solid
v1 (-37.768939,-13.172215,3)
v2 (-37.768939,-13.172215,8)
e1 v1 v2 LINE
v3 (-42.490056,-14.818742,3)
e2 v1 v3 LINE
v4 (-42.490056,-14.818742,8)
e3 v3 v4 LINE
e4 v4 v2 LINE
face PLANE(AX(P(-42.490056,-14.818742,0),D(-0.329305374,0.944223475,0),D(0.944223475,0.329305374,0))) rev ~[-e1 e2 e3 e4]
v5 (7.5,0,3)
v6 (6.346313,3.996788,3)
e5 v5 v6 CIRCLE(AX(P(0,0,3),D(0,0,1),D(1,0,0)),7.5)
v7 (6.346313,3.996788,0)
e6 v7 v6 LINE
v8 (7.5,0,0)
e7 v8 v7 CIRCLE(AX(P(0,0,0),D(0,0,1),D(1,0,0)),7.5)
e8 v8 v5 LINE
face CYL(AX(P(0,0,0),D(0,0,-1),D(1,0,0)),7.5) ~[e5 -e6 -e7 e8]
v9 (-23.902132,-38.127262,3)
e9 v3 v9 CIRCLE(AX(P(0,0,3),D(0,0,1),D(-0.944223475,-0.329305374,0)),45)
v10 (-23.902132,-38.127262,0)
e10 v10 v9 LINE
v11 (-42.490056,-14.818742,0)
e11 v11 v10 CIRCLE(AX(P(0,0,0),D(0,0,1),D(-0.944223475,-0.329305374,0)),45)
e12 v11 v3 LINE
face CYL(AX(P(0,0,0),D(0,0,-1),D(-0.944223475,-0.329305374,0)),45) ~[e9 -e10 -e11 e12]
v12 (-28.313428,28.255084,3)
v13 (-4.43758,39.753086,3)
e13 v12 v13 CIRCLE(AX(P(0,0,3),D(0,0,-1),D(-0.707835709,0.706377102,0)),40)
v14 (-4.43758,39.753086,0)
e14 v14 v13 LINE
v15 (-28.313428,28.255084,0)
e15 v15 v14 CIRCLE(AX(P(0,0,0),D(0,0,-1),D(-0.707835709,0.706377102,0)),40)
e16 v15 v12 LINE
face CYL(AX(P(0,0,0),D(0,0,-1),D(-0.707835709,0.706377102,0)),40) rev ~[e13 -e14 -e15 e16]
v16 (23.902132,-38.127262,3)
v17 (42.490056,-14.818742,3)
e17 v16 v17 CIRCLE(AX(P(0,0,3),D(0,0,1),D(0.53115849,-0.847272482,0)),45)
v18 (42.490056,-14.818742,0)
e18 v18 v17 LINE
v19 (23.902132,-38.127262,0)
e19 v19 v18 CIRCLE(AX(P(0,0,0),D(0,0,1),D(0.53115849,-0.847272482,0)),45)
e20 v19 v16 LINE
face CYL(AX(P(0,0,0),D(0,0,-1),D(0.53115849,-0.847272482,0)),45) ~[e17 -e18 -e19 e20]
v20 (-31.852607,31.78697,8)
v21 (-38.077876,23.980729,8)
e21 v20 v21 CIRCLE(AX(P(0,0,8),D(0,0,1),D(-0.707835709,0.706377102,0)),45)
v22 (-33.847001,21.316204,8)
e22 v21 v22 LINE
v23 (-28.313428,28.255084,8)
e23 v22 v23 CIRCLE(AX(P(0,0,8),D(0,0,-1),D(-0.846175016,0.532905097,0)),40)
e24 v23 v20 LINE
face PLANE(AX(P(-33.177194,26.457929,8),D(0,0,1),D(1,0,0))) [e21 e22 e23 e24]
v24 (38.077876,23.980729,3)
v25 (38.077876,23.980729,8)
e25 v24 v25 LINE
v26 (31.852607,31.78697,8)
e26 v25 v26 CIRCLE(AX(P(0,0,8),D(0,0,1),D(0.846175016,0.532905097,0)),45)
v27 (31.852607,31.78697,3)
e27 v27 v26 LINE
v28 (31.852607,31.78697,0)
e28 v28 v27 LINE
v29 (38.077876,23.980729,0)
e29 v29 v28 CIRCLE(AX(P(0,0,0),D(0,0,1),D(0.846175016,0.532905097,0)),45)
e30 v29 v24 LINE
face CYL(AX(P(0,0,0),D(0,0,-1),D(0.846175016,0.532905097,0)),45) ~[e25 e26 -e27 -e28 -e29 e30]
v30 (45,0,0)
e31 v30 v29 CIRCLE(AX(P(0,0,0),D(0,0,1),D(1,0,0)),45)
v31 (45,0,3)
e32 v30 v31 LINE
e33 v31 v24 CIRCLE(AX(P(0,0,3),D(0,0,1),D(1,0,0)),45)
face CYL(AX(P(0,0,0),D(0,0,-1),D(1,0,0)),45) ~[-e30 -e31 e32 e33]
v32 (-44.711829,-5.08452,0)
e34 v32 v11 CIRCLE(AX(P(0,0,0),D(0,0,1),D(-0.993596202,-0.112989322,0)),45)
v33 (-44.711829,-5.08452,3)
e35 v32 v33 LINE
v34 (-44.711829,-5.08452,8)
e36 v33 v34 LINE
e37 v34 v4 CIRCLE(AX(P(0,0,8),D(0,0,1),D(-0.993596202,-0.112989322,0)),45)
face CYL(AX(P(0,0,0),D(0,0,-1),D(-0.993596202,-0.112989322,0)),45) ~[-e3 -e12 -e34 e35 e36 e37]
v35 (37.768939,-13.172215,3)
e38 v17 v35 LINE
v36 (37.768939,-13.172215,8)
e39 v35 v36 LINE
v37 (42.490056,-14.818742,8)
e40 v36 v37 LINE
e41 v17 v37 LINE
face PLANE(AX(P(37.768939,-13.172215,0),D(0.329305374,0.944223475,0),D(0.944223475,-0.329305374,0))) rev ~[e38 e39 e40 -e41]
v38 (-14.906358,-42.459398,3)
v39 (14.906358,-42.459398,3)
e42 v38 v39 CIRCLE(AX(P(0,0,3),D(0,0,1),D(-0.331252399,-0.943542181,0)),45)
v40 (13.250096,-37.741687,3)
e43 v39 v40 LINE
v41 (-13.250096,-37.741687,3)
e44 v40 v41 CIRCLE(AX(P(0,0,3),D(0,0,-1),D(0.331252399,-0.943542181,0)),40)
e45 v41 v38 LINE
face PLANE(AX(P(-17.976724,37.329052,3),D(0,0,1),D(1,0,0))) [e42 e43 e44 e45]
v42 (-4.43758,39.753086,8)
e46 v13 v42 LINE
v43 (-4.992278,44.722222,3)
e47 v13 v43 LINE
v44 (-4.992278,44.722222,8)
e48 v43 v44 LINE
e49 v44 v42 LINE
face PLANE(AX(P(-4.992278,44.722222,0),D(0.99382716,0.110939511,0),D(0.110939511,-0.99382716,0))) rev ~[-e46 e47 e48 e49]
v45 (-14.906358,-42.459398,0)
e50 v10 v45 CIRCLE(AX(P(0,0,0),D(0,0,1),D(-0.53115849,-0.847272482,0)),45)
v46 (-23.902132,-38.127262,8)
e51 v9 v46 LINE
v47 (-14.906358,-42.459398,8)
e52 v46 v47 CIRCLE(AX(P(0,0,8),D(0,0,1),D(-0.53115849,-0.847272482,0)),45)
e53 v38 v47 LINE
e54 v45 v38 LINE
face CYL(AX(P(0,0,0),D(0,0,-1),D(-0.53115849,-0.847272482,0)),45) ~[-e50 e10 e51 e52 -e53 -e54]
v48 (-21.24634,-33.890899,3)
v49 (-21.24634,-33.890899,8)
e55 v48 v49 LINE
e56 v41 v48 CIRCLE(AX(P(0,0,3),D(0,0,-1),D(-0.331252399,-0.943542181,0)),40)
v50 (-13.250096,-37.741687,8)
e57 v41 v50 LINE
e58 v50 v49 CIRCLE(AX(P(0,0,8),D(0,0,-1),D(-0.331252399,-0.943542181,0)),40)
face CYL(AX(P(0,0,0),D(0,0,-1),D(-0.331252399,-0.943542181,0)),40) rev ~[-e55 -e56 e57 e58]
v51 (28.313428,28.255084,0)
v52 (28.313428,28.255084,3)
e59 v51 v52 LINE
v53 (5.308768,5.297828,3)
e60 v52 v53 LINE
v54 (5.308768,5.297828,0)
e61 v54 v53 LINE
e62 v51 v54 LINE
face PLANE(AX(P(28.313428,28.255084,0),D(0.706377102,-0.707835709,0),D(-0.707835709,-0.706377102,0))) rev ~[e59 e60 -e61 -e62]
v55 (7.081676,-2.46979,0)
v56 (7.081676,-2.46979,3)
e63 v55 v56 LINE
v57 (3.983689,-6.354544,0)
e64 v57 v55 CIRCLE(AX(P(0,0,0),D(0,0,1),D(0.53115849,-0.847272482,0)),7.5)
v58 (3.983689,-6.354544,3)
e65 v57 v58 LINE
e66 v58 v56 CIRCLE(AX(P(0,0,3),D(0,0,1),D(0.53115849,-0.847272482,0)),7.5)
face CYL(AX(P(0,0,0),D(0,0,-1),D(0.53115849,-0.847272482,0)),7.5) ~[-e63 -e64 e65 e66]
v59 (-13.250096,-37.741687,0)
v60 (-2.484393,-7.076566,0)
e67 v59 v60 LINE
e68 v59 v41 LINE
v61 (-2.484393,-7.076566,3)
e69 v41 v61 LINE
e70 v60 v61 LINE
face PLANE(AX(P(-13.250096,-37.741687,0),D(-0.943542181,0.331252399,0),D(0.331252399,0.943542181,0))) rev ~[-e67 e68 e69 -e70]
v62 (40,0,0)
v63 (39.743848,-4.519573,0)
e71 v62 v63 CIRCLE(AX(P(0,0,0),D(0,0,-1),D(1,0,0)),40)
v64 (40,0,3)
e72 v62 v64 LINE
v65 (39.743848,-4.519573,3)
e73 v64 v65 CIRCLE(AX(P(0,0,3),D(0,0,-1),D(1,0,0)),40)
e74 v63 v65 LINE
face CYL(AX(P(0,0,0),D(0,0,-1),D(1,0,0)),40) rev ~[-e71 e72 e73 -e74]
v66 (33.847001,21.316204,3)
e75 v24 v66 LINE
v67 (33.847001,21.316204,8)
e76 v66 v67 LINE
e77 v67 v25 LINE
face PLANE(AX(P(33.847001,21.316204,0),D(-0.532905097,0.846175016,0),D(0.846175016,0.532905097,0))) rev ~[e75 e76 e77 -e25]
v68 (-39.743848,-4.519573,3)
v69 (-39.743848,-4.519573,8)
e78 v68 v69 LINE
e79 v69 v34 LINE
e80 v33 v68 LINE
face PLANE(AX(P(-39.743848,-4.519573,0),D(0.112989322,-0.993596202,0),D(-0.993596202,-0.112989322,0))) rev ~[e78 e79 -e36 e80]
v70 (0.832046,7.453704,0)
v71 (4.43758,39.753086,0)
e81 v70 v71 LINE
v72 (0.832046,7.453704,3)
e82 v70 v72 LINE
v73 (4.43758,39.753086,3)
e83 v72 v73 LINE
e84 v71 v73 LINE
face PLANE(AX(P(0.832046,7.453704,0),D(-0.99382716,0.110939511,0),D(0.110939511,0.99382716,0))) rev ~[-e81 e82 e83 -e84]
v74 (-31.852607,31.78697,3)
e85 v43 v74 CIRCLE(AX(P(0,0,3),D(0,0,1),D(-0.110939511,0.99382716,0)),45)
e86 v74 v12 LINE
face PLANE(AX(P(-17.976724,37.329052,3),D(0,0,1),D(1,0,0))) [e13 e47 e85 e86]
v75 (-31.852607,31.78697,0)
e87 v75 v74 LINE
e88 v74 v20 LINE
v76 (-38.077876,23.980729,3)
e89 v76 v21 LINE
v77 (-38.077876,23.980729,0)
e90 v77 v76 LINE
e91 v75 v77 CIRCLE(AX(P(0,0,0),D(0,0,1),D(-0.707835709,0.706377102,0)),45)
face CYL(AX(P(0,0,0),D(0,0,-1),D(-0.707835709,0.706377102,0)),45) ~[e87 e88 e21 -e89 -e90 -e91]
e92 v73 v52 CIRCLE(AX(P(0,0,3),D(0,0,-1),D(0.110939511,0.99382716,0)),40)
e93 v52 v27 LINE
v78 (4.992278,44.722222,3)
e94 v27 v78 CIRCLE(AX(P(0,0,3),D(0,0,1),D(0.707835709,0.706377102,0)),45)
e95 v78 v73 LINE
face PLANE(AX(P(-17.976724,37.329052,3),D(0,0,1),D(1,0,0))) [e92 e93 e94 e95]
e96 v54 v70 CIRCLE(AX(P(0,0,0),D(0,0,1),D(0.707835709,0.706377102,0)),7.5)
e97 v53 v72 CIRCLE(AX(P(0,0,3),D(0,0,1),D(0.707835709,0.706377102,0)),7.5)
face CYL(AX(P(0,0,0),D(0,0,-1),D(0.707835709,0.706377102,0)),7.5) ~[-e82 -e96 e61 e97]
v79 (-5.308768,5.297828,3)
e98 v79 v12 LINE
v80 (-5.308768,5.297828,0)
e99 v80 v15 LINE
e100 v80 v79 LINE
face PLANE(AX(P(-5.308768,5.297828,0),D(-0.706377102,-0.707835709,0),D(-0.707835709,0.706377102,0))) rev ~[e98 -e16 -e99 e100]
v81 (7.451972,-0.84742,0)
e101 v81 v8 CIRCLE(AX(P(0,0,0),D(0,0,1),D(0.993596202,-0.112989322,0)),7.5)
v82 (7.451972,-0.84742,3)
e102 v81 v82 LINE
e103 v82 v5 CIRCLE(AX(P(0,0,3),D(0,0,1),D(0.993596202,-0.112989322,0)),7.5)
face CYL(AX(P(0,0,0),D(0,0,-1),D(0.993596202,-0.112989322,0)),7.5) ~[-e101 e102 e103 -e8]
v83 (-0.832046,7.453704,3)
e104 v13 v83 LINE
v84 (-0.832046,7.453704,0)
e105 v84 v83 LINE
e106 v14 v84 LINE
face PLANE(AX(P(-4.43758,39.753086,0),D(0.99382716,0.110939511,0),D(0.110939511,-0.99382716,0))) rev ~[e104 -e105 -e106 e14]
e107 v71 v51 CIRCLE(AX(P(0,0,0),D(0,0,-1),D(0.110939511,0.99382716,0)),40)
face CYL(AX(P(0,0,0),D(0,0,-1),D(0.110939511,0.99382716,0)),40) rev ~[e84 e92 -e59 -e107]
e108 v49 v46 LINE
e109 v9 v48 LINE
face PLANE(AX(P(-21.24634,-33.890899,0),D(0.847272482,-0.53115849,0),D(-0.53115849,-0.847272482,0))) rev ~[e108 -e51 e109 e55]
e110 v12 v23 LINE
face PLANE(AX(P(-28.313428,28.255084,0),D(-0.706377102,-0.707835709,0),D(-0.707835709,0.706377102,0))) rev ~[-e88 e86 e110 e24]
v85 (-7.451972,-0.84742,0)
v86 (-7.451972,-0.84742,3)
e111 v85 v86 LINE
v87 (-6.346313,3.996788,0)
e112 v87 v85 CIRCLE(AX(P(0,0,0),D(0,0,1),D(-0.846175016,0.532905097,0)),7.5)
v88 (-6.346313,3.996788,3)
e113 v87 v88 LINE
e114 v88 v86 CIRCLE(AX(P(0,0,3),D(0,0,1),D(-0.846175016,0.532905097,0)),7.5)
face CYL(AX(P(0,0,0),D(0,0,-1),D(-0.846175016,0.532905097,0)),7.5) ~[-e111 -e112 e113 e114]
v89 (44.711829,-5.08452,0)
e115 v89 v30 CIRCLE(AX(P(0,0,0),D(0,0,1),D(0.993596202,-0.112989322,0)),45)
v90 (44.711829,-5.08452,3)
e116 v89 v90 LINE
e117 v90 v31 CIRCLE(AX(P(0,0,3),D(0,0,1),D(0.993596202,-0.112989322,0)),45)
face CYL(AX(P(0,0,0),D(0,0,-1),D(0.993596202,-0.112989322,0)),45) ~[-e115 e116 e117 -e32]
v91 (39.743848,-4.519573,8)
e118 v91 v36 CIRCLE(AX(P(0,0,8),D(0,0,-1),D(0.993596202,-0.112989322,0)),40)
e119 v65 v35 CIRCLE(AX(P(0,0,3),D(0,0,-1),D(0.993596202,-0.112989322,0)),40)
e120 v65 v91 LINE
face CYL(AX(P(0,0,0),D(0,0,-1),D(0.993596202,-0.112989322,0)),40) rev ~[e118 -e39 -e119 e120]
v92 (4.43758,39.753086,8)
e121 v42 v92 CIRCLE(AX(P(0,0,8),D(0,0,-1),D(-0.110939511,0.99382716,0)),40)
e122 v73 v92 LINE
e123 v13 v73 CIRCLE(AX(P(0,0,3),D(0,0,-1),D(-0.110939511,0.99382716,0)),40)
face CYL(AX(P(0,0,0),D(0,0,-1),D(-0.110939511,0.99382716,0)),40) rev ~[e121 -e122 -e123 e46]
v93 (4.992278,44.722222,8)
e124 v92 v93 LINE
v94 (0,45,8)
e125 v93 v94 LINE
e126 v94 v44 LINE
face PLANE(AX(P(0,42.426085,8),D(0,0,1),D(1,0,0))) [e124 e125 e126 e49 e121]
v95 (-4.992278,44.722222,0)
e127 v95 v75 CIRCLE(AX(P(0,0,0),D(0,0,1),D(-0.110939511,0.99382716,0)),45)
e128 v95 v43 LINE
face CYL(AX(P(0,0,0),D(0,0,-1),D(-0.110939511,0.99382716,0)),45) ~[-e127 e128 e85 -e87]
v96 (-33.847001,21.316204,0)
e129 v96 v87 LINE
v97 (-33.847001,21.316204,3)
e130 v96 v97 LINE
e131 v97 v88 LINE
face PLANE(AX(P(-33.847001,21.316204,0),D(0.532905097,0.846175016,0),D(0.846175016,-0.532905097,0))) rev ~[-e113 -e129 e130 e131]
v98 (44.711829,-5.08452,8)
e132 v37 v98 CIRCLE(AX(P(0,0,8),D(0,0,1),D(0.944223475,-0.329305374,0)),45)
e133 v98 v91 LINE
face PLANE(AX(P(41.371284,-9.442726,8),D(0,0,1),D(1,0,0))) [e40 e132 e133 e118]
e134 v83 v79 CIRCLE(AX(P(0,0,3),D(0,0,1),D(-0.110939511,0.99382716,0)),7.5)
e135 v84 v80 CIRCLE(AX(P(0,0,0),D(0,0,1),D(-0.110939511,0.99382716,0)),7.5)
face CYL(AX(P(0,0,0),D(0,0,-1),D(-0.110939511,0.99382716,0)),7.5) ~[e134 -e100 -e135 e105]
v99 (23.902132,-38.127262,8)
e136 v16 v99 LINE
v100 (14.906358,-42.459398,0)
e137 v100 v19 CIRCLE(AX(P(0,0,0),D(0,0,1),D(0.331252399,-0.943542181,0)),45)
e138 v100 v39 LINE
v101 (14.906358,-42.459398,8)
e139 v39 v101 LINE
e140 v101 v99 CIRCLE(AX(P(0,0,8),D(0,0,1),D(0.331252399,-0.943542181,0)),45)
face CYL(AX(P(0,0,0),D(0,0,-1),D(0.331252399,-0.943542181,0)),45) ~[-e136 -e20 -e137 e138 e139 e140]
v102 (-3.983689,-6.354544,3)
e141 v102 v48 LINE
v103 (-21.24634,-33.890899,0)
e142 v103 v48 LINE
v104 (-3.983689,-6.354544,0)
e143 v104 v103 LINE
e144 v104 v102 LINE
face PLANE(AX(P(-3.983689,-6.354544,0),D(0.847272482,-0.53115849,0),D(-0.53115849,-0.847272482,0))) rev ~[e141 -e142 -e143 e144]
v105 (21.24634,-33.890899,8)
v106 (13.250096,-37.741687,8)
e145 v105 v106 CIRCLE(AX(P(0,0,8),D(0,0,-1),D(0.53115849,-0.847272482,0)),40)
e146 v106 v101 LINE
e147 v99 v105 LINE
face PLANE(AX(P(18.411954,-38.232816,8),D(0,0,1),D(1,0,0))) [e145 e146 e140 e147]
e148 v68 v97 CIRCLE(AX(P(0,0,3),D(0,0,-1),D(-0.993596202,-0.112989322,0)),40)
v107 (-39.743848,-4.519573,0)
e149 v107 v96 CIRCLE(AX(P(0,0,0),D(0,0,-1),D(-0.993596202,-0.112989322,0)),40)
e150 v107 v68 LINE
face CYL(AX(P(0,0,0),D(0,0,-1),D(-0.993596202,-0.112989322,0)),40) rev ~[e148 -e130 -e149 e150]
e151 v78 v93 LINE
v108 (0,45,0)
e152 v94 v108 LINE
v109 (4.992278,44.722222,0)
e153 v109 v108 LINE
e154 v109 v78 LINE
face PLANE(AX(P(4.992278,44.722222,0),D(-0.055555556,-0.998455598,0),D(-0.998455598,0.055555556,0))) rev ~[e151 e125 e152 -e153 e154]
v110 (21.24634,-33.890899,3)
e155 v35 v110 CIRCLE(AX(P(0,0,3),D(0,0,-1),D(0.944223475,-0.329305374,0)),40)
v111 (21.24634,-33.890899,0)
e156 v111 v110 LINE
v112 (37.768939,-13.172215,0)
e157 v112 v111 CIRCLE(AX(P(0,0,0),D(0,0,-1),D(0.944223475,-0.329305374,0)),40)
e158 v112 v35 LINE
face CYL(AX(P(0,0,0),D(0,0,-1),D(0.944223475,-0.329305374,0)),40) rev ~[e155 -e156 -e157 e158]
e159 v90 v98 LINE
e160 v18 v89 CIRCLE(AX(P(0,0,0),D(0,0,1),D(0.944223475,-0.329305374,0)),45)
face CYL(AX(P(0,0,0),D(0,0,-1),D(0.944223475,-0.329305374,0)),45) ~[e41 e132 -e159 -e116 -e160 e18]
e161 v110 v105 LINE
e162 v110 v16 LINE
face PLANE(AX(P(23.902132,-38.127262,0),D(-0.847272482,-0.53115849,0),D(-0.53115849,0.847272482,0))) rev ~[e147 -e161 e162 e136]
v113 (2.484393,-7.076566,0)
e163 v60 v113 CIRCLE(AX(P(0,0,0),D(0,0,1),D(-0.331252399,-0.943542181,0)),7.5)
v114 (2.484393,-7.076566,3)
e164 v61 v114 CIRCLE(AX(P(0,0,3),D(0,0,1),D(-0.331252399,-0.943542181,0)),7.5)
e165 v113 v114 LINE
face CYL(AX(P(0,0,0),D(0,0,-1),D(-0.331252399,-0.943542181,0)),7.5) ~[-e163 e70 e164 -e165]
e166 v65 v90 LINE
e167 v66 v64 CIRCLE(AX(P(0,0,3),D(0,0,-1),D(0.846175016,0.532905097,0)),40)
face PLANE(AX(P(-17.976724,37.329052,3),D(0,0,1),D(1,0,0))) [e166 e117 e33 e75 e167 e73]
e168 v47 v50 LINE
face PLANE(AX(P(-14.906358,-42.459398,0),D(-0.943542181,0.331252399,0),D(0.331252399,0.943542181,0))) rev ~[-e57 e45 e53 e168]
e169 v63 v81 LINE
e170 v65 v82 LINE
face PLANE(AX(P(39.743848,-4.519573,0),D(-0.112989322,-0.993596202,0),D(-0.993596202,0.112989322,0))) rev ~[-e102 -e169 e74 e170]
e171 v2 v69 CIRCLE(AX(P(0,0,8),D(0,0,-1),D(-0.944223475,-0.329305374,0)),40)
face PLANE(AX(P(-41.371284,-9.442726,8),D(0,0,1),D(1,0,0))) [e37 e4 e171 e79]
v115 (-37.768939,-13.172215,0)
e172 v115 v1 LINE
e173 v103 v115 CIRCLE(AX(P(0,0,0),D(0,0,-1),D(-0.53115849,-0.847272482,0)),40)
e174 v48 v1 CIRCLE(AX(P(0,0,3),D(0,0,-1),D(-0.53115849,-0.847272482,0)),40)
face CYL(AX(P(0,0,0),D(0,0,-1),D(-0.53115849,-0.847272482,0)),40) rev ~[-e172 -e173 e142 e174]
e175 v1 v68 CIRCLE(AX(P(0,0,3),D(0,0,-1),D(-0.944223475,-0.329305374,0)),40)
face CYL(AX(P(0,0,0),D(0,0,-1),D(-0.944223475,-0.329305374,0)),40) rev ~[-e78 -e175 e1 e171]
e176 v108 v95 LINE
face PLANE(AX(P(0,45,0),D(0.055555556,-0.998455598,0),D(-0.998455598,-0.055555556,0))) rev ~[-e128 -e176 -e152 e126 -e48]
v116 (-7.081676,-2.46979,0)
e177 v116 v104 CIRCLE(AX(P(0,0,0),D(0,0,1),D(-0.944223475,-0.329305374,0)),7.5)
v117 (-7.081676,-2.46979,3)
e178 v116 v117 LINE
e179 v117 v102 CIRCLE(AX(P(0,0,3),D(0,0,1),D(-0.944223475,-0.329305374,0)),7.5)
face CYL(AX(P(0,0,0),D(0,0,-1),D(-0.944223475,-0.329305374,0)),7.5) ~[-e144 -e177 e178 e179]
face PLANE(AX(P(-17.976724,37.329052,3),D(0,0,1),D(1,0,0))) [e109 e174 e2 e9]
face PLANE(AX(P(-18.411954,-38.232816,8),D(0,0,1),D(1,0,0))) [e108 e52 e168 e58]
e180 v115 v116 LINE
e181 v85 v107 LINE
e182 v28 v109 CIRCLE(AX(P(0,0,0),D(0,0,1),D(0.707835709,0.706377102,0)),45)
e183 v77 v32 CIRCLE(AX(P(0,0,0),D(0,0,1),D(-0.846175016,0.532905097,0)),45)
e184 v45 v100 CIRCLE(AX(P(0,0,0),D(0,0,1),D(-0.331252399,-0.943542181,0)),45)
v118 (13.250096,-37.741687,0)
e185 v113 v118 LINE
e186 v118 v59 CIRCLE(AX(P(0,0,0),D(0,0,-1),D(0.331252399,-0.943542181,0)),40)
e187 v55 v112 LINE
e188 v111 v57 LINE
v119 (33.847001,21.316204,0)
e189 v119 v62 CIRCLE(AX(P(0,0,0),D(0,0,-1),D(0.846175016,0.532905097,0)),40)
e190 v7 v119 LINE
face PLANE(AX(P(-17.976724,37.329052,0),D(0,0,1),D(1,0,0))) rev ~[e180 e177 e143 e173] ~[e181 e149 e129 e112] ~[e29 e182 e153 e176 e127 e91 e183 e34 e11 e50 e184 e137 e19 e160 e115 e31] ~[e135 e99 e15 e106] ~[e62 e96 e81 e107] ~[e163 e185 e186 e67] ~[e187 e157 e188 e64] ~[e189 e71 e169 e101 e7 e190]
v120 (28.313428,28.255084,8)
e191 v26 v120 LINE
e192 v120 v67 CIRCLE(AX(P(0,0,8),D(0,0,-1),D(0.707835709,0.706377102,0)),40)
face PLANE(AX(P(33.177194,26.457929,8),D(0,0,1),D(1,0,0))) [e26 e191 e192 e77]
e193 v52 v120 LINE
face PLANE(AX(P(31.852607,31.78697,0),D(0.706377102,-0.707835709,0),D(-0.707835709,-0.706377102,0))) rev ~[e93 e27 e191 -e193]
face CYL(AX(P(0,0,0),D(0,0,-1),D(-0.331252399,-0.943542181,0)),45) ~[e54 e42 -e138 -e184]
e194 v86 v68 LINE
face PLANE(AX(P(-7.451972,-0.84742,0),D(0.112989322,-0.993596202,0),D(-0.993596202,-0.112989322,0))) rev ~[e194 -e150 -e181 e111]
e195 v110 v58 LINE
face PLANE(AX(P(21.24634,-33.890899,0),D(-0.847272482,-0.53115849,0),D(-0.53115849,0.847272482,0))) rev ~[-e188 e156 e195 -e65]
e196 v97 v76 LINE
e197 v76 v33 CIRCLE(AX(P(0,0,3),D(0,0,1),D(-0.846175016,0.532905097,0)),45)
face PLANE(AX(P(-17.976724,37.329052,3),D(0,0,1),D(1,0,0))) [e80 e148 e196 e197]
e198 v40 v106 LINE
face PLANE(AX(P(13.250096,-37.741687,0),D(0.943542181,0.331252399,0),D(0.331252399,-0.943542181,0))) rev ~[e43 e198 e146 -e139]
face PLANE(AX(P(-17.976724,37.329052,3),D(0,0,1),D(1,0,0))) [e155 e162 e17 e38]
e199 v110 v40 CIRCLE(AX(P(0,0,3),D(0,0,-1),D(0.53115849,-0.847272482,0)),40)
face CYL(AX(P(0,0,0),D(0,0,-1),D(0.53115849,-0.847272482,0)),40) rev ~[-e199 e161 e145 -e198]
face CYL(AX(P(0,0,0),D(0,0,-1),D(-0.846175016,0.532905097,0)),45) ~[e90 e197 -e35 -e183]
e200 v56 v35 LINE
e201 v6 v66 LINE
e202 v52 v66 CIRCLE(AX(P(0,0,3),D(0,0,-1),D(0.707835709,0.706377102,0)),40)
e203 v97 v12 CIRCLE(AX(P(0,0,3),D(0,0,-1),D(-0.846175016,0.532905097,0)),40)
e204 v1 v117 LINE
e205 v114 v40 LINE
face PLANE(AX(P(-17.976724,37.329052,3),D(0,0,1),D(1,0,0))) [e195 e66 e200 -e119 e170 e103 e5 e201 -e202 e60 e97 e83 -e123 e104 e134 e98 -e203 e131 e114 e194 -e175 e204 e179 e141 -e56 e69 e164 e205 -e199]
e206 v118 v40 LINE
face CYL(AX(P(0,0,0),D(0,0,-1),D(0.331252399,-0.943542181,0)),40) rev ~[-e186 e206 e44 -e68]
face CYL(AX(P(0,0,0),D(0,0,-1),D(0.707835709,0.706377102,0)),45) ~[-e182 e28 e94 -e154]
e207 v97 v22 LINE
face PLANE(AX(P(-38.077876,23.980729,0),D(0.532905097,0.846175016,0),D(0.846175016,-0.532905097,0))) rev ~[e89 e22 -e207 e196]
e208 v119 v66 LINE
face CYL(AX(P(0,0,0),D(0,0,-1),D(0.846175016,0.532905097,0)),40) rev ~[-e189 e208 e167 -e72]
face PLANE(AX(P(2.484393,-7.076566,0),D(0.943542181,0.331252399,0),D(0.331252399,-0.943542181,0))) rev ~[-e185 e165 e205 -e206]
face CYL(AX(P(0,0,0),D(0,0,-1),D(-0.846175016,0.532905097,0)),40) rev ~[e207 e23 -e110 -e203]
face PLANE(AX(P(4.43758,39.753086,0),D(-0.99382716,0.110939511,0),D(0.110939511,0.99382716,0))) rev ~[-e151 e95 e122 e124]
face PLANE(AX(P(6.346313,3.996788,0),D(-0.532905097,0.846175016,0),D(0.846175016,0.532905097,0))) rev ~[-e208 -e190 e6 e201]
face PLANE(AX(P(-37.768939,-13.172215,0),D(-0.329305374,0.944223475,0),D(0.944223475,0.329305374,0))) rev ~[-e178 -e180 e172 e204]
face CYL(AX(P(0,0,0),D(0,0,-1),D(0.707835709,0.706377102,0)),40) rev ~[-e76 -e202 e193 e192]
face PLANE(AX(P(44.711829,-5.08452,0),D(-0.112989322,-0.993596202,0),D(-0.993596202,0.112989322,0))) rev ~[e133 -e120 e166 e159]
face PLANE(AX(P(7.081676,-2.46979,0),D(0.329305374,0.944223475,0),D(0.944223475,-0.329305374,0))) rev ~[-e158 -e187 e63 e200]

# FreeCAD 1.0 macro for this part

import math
import FreeCAD as App
import Part
import Sketcher

V = App.Vector

doc = App.newDocument("Part")
body = doc.addObject("PartDesign::Body", "Body")

# Sketch on XY plane
sketch1 = body.newObject("Sketcher::SketchObject", "Sketch")
sketch1.AttachmentSupport = (doc.getObject("XY_Plane"), [""])
sketch1.MapMode = "FlatFace"
sketch1.addGeometry(Part.ArcOfCircle(Part.Circle(V(0, 0, 0), V(0, 0, 1), 45), math.radians(32.2), math.radians(44.94)), False)
sketch1.addGeometry(Part.ArcOfCircle(Part.Circle(V(0, 0, 0), V(0, 0, 1), 45), math.radians(45), math.radians(84)), False)
sketch1.addGeometry(Part.LineSegment(V(5, 44.7, 0), V(0, 45, 0)), False)
sketch1.addGeometry(Part.LineSegment(V(0, 45, 0), V(-5, 44.7, 0)), False)
sketch1.addGeometry(Part.ArcOfCircle(Part.Circle(V(0, 0, 0), V(0, 0, 1), 45), math.radians(96), math.radians(135)), False)
sketch1.addGeometry(Part.ArcOfCircle(Part.Circle(V(0, 0, 0), V(0, 0, 1), 45), math.radians(135.06), math.radians(147.8)), False)
sketch1.addGeometry(Part.ArcOfCircle(Part.Circle(V(0, 0, 0), V(0, 0, 1), 45), math.radians(148), math.radians(186)), False)
sketch1.addGeometry(Part.ArcOfCircle(Part.Circle(V(0, 0, 0), V(0, 0, 1), 45), math.radians(-173.51), math.radians(-160.77)), False)
sketch1.addGeometry(Part.ArcOfCircle(Part.Circle(V(0, 0, 0), V(0, 0, 1), 45), math.radians(-161), math.radians(-122)), False)
sketch1.addGeometry(Part.ArcOfCircle(Part.Circle(V(0, 0, 0), V(0, 0, 1), 45), math.radians(-122.08), math.radians(-109.34)), False)
sketch1.addGeometry(Part.ArcOfCircle(Part.Circle(V(0, 0, 0), V(0, 0, 1), 45), math.radians(-109), math.radians(-71)), False)
sketch1.addGeometry(Part.ArcOfCircle(Part.Circle(V(0, 0, 0), V(0, 0, 1), 45), math.radians(-70.66), math.radians(-57.92)), False)
sketch1.addGeometry(Part.ArcOfCircle(Part.Circle(V(0, 0, 0), V(0, 0, 1), 45), math.radians(-58), math.radians(-19)), False)
sketch1.addGeometry(Part.ArcOfCircle(Part.Circle(V(0, 0, 0), V(0, 0, 1), 45), math.radians(-19.23), math.radians(-6.49)), False)
sketch1.addGeometry(Part.ArcOfCircle(Part.Circle(V(0, 0, 0), V(0, 0, 1), 45), math.radians(-6.49), math.radians(0)), False)
sketch1.addGeometry(Part.ArcOfCircle(Part.Circle(V(0, 0, 0), V(0, 0, 1), 45), math.radians(0), math.radians(32)), False)
sketch1.addGeometry(Part.LineSegment(V(6.3, 4, 0), V(33.8, 21.3, 0)), False)
sketch1.addGeometry(Part.ArcOfCircle(Part.Circle(V(0, 0, 0), V(0, 0, 1), 40), math.radians(0), math.radians(32)), False)
sketch1.addGeometry(Part.ArcOfCircle(Part.Circle(V(0, 0, 0), V(0, 0, 1), 40), math.radians(-6.49), math.radians(0)), False)
sketch1.addGeometry(Part.LineSegment(V(39.7, -4.5, 0), V(7.5, -0.8, 0)), False)
sketch1.addGeometry(Part.ArcOfCircle(Part.Circle(V(0, 0, 0), V(0, 0, 1), 7.5), math.radians(-6.49), math.radians(0)), False)
sketch1.addGeometry(Part.ArcOfCircle(Part.Circle(V(0, 0, 0), V(0, 0, 1), 7.5), math.radians(0), math.radians(32)), False)
sketch1.addGeometry(Part.ArcOfCircle(Part.Circle(V(0, 0, 0), V(0, 0, 1), 7.5), math.radians(-161), math.radians(-122)), False)
sketch1.addGeometry(Part.LineSegment(V(-4, -6.4, 0), V(-21.2, -33.9, 0)), False)
sketch1.addGeometry(Part.ArcOfCircle(Part.Circle(V(0, 0, 0), V(0, 0, 1), 40), math.radians(-161), math.radians(-122)), False)
sketch1.addGeometry(Part.LineSegment(V(-37.8, -13.2, 0), V(-7.1, -2.5, 0)), False)
sketch1.addGeometry(Part.ArcOfCircle(Part.Circle(V(0, 0, 0), V(0, 0, 1), 7.5), math.radians(-109), math.radians(-71)), False)
sketch1.addGeometry(Part.LineSegment(V(2.5, -7.1, 0), V(13.3, -37.7, 0)), False)
sketch1.addGeometry(Part.ArcOfCircle(Part.Circle(V(0, 0, 0), V(0, 0, 1), 40), math.radians(-109), math.radians(-71)), False)
sketch1.addGeometry(Part.LineSegment(V(-13.3, -37.7, 0), V(-2.5, -7.1, 0)), False)
sketch1.addGeometry(Part.ArcOfCircle(Part.Circle(V(0, 0, 0), V(0, 0, 1), 7.5), math.radians(-58), math.radians(-19)), False)
sketch1.addGeometry(Part.LineSegment(V(7.1, -2.5, 0), V(37.8, -13.2, 0)), False)
sketch1.addGeometry(Part.ArcOfCircle(Part.Circle(V(0, 0, 0), V(0, 0, 1), 40), math.radians(-58), math.radians(-19)), False)
sketch1.addGeometry(Part.LineSegment(V(21.2, -33.9, 0), V(4, -6.4, 0)), False)
sketch1.addGeometry(Part.ArcOfCircle(Part.Circle(V(0, 0, 0), V(0, 0, 1), 7.5), math.radians(148), math.radians(186)), False)
sketch1.addGeometry(Part.LineSegment(V(-7.5, -0.8, 0), V(-39.7, -4.5, 0)), False)
sketch1.addGeometry(Part.ArcOfCircle(Part.Circle(V(0, 0, 0), V(0, 0, 1), 40), math.radians(148), math.radians(186)), False)
sketch1.addGeometry(Part.LineSegment(V(-33.8, 21.3, 0), V(-6.3, 4, 0)), False)
sketch1.addGeometry(Part.ArcOfCircle(Part.Circle(V(0, 0, 0), V(0, 0, 1), 40), math.radians(96), math.radians(135)), False)
sketch1.addGeometry(Part.LineSegment(V(-4.4, 39.8, 0), V(-0.8, 7.5, 0)), False)
sketch1.addGeometry(Part.ArcOfCircle(Part.Circle(V(0, 0, 0), V(0, 0, 1), 7.5), math.radians(96), math.radians(135)), False)
sketch1.addGeometry(Part.LineSegment(V(-5.3, 5.3, 0), V(-28.3, 28.3, 0)), False)
sketch1.addGeometry(Part.ArcOfCircle(Part.Circle(V(0, 0, 0), V(0, 0, 1), 40), math.radians(45), math.radians(84)), False)
sketch1.addGeometry(Part.LineSegment(V(28.3, 28.3, 0), V(5.3, 5.3, 0)), False)
sketch1.addGeometry(Part.ArcOfCircle(Part.Circle(V(0, 0, 0), V(0, 0, 1), 7.5), math.radians(45), math.radians(84)), False)
sketch1.addGeometry(Part.LineSegment(V(0.8, 7.5, 0), V(4.4, 39.8, 0)), False)
sketch1.addConstraint(Sketcher.Constraint("Tangent", 0, 2, 1, 1))
sketch1.addConstraint(Sketcher.Constraint("Coincident", 1, 2, 2, 1))
sketch1.addConstraint(Sketcher.Constraint("Coincident", 2, 2, 3, 1))
sketch1.addConstraint(Sketcher.Constraint("Coincident", 3, 2, 4, 1))
sketch1.addConstraint(Sketcher.Constraint("Tangent", 4, 2, 5, 1))
sketch1.addConstraint(Sketcher.Constraint("Tangent", 5, 2, 6, 1))
sketch1.addConstraint(Sketcher.Constraint("Tangent", 6, 2, 7, 1))
sketch1.addConstraint(Sketcher.Constraint("Tangent", 7, 2, 8, 1))
sketch1.addConstraint(Sketcher.Constraint("Tangent", 8, 2, 9, 1))
sketch1.addConstraint(Sketcher.Constraint("Tangent", 9, 2, 10, 1))
sketch1.addConstraint(Sketcher.Constraint("Tangent", 10, 2, 11, 1))
sketch1.addConstraint(Sketcher.Constraint("Tangent", 11, 2, 12, 1))
sketch1.addConstraint(Sketcher.Constraint("Tangent", 12, 2, 13, 1))
sketch1.addConstraint(Sketcher.Constraint("Tangent", 13, 2, 14, 1))
sketch1.addConstraint(Sketcher.Constraint("Tangent", 14, 2, 15, 1))
sketch1.addConstraint(Sketcher.Constraint("Tangent", 15, 2, 0, 1))
sketch1.addConstraint(Sketcher.Constraint("Coincident", 16, 2, 17, 2))
sketch1.addConstraint(Sketcher.Constraint("Tangent", 17, 1, 18, 2))
sketch1.addConstraint(Sketcher.Constraint("Coincident", 18, 1, 19, 1))
sketch1.addConstraint(Sketcher.Constraint("Coincident", 19, 2, 20, 1))
sketch1.addConstraint(Sketcher.Constraint("Tangent", 20, 2, 21, 1))
sketch1.addConstraint(Sketcher.Constraint("Coincident", 21, 2, 16, 1))
sketch1.addConstraint(Sketcher.Constraint("Coincident", 22, 2, 23, 1))
sketch1.addConstraint(Sketcher.Constraint("Coincident", 23, 2, 24, 2))
sketch1.addConstraint(Sketcher.Constraint("Coincident", 24, 1, 25, 1))
sketch1.addConstraint(Sketcher.Constraint("Coincident", 25, 2, 22, 1))
sketch1.addConstraint(Sketcher.Constraint("Coincident", 26, 2, 27, 1))
sketch1.addConstraint(Sketcher.Constraint("Coincident", 27, 2, 28, 2))
sketch1.addConstraint(Sketcher.Constraint("Coincident", 28, 1, 29, 1))
sketch1.addConstraint(Sketcher.Constraint("Coincident", 29, 2, 26, 1))
sketch1.addConstraint(Sketcher.Constraint("Coincident", 30, 2, 31, 1))
sketch1.addConstraint(Sketcher.Constraint("Coincident", 31, 2, 32, 2))
sketch1.addConstraint(Sketcher.Constraint("Coincident", 32, 1, 33, 1))
sketch1.addConstraint(Sketcher.Constraint("Coincident", 33, 2, 30, 1))
sketch1.addConstraint(Sketcher.Constraint("Coincident", 34, 2, 35, 1))
sketch1.addConstraint(Sketcher.Constraint("Coincident", 35, 2, 36, 2))
sketch1.addConstraint(Sketcher.Constraint("Coincident", 36, 1, 37, 1))
sketch1.addConstraint(Sketcher.Constraint("Coincident", 37, 2, 34, 1))
sketch1.addConstraint(Sketcher.Constraint("Coincident", 38, 1, 39, 1))
sketch1.addConstraint(Sketcher.Constraint("Coincident", 39, 2, 40, 1))
sketch1.addConstraint(Sketcher.Constraint("Coincident", 40, 2, 41, 1))
sketch1.addConstraint(Sketcher.Constraint("Coincident", 41, 2, 38, 2))
sketch1.addConstraint(Sketcher.Constraint("Coincident", 42, 1, 43, 1))
sketch1.addConstraint(Sketcher.Constraint("Coincident", 43, 2, 44, 1))
sketch1.addConstraint(Sketcher.Constraint("Coincident", 44, 2, 45, 1))
sketch1.addConstraint(Sketcher.Constraint("Coincident", 45, 2, 42, 2))
sketch1.addConstraint(Sketcher.Constraint("Coincident", 0, 3, -1, 1))
sketch1.addConstraint(Sketcher.Constraint("Coincident", 4, 3, -1, 1))
sketch1.addConstraint(Sketcher.Constraint("Coincident", 6, 3, -1, 1))
sketch1.addConstraint(Sketcher.Constraint("Coincident", 8, 3, -1, 1))
sketch1.addConstraint(Sketcher.Constraint("Coincident", 10, 3, -1, 1))
sketch1.addConstraint(Sketcher.Constraint("Coincident", 12, 3, -1, 1))
sketch1.addConstraint(Sketcher.Constraint("Coincident", 14, 3, -1, 1))
sketch1.addConstraint(Sketcher.Constraint("Coincident", 17, 3, -1, 1))
sketch1.addConstraint(Sketcher.Constraint("Coincident", 20, 3, -1, 1))
sketch1.addConstraint(Sketcher.Constraint("Coincident", 22, 3, -1, 1))
sketch1.addConstraint(Sketcher.Constraint("Coincident", 24, 3, -1, 1))
sketch1.addConstraint(Sketcher.Constraint("Coincident", 26, 3, -1, 1))
sketch1.addConstraint(Sketcher.Constraint("Coincident", 28, 3, -1, 1))
sketch1.addConstraint(Sketcher.Constraint("Coincident", 30, 3, -1, 1))
sketch1.addConstraint(Sketcher.Constraint("Coincident", 32, 3, -1, 1))
sketch1.addConstraint(Sketcher.Constraint("Coincident", 34, 3, -1, 1))
sketch1.addConstraint(Sketcher.Constraint("Coincident", 36, 3, -1, 1))
sketch1.addConstraint(Sketcher.Constraint("Coincident", 38, 3, -1, 1))
sketch1.addConstraint(Sketcher.Constraint("Coincident", 40, 3, -1, 1))
sketch1.addConstraint(Sketcher.Constraint("Coincident", 42, 3, -1, 1))
sketch1.addConstraint(Sketcher.Constraint("Coincident", 44, 3, -1, 1))
sketch1.addConstraint(Sketcher.Constraint("Equal", 0, 1))
sketch1.addConstraint(Sketcher.Constraint("Equal", 17, 18))
sketch1.addConstraint(Sketcher.Constraint("Equal", 20, 21))
sketch1.addConstraint(Sketcher.Constraint("Equal", 21, 22))
sketch1.addConstraint(Sketcher.Constraint("Equal", 18, 24))
sketch1.addConstraint(Sketcher.Constraint("Equal", 22, 26))
sketch1.addConstraint(Sketcher.Constraint("Equal", 24, 28))
sketch1.addConstraint(Sketcher.Constraint("Equal", 26, 30))
sketch1.addConstraint(Sketcher.Constraint("Equal", 28, 32))
sketch1.addConstraint(Sketcher.Constraint("Equal", 30, 34))
sketch1.addConstraint(Sketcher.Constraint("Equal", 32, 36))
sketch1.addConstraint(Sketcher.Constraint("Equal", 36, 38))
sketch1.addConstraint(Sketcher.Constraint("Equal", 34, 40))
sketch1.addConstraint(Sketcher.Constraint("Equal", 38, 42))
sketch1.addConstraint(Sketcher.Constraint("Equal", 40, 44))
sketch1.addConstraint(Sketcher.Constraint("PointOnObject", 2, 2, -2))
sketch1.addConstraint(Sketcher.Constraint("PointOnObject", 14, 2, -1))
sketch1.addConstraint(Sketcher.Constraint("PointOnObject", 17, 1, -1))
sketch1.addConstraint(Sketcher.Constraint("PointOnObject", 20, 2, -1))
sketch1.addConstraint(Sketcher.Constraint("Horizontal", 1, 2, 3, 2))
sketch1.addConstraint(Sketcher.Constraint("Horizontal", 0, 2, 4, 2))
sketch1.addConstraint(Sketcher.Constraint("Horizontal", 9, 2, 10, 2))
sketch1.addConstraint(Sketcher.Constraint("Horizontal", 8, 2, 11, 2))
sketch1.addConstraint(Sketcher.Constraint("Horizontal", 7, 2, 12, 2))
sketch1.addConstraint(Sketcher.Constraint("Horizontal", 6, 2, 13, 2))
sketch1.addConstraint(Sketcher.Constraint("Horizontal", 5, 2, 15, 2))
sketch1.addConstraint(Sketcher.Constraint("Horizontal", 27, 2, 28, 1))
sketch1.addConstraint(Sketcher.Constraint("Horizontal", 26, 2, 29, 2))
sketch1.addConstraint(Sketcher.Constraint("Horizontal", 25, 2, 30, 2))
sketch1.addConstraint(Sketcher.Constraint("Horizontal", 24, 1, 31, 2))
sketch1.addConstraint(Sketcher.Constraint("Horizontal", 23, 2, 32, 1))
sketch1.addConstraint(Sketcher.Constraint("Horizontal", 22, 2, 33, 2))
sketch1.addConstraint(Sketcher.Constraint("Horizontal", 19, 2, 34, 2))
sketch1.addConstraint(Sketcher.Constraint("Horizontal", 18, 1, 35, 2))
sketch1.addConstraint(Sketcher.Constraint("Horizontal", 16, 2, 36, 1))
sketch1.addConstraint(Sketcher.Constraint("Horizontal", 21, 2, 37, 2))
sketch1.addConstraint(Sketcher.Constraint("Horizontal", 41, 2, 42, 1))
sketch1.addConstraint(Sketcher.Constraint("Horizontal", 40, 2, 43, 2))
sketch1.addConstraint(Sketcher.Constraint("Horizontal", 39, 2, 44, 2))
sketch1.addConstraint(Sketcher.Constraint("Horizontal", 38, 1, 45, 2))
sketch1.addConstraint(Sketcher.Constraint("Radius", 0, 45.0))
sketch1.addConstraint(Sketcher.Constraint("Radius", 17, 40.0))
sketch1.addConstraint(Sketcher.Constraint("Radius", 20, 7.5))
sketch1.addConstraint(Sketcher.Constraint("Distance", 2, 5.0))
sketch1.addConstraint(Sketcher.Constraint("DistanceY", -1, 1, 2, 2, 45.0))
sketch1.addConstraint(Sketcher.Constraint("DistanceX", -1, 1, 16, 2, 33.847001))
sketch1.addConstraint(Sketcher.Constraint("DistanceY", 9, 2, -1, 1, 42.459398))
sketch1.addConstraint(Sketcher.Constraint("DistanceY", 23, 2, -1, 1, 33.890899))
sketch1.addConstraint(Sketcher.Constraint("DistanceY", -1, 1, 0, 2, 31.78697))
sketch1.addConstraint(Sketcher.Constraint("DistanceY", -1, 1, 5, 2, 23.980729))
sketch1.addConstraint(Sketcher.Constraint("DistanceX", 6, 2, -1, 1, 44.711829))
sketch1.addConstraint(Sketcher.Constraint("DistanceY", 7, 2, -1, 1, 14.818742))
sketch1.addConstraint(Sketcher.Constraint("DistanceY", 8, 2, -1, 1, 38.127262))
sketch1.addConstraint(Sketcher.Constraint("DistanceX", -1, 1, 18, 1, 39.743848))
sketch1.addConstraint(Sketcher.Constraint("DistanceX", -1, 1, 19, 2, 7.451972))
sketch1.addConstraint(Sketcher.Constraint("DistanceY", -1, 1, 21, 2, 3.996788))
sketch1.addConstraint(Sketcher.Constraint("DistanceX", 22, 2, -1, 1, 3.983689))
sketch1.addConstraint(Sketcher.Constraint("DistanceX", 24, 1, -1, 1, 37.768939))
sketch1.addConstraint(Sketcher.Constraint("DistanceY", 25, 2, -1, 1, 2.46979))
sketch1.addConstraint(Sketcher.Constraint("DistanceX", 38, 1, -1, 1, 4.43758))
sketch1.addConstraint(Sketcher.Constraint("DistanceY", -1, 1, 40, 2, 5.297828))
sketch1.addConstraint(Sketcher.Constraint("DistanceX", 41, 2, -1, 1, 28.313428))
sketch1.addConstraint(Sketcher.Constraint("DistanceX", -1, 1, 26, 2, 2.484393))
sketch1.addConstraint(Sketcher.Constraint("DistanceX", -1, 1, 27, 2, 13.250096))
sketch1.addConstraint(Sketcher.Constraint("DistanceX", 39, 2, -1, 1, 0.832046))
pad1 = body.newObject("PartDesign::Pad", "Pad")
pad1.Profile = sketch1
pad1.Length = 3

# Sketch on XY plane
sketch2 = body.newObject("Sketcher::SketchObject", "Sketch001")
sketch2.AttachmentSupport = (doc.getObject("XY_Plane"), [""])
sketch2.MapMode = "FlatFace"
sketch2.addGeometry(Part.LineSegment(V(4.4, 39.8, 0), V(5, 44.7, 0)), False)
sketch2.addGeometry(Part.LineSegment(V(5, 44.7, 0), V(0, 45, 0)), False)
sketch2.addGeometry(Part.LineSegment(V(0, 45, 0), V(-5, 44.7, 0)), False)
sketch2.addGeometry(Part.LineSegment(V(-5, 44.7, 0), V(-4.4, 39.8, 0)), False)
sketch2.addGeometry(Part.ArcOfCircle(Part.Circle(V(0, 0, 0), V(0, 0, 1), 40), math.radians(83.63), math.radians(96.37)), False)
sketch2.addGeometry(Part.LineSegment(V(-28.3, 28.3, 0), V(-31.9, 31.8, 0)), False)
sketch2.addGeometry(Part.ArcOfCircle(Part.Circle(V(0, 0, 0), V(0, 0, 1), 45), math.radians(135.06), math.radians(147.8)), False)
sketch2.addGeometry(Part.LineSegment(V(-38.1, 24, 0), V(-33.8, 21.3, 0)), False)
sketch2.addGeometry(Part.ArcOfCircle(Part.Circle(V(0, 0, 0), V(0, 0, 1), 40), math.radians(135.06), math.radians(147.8)), False)
sketch2.addGeometry(Part.ArcOfCircle(Part.Circle(V(0, 0, 0), V(0, 0, 1), 40), math.radians(-173.51), math.radians(-160.77)), False)
sketch2.addGeometry(Part.LineSegment(V(-39.7, -4.5, 0), V(-44.7, -5.1, 0)), False)
sketch2.addGeometry(Part.ArcOfCircle(Part.Circle(V(0, 0, 0), V(0, 0, 1), 45), math.radians(-173.51), math.radians(-160.77)), False)
sketch2.addGeometry(Part.LineSegment(V(-42.5, -14.8, 0), V(-37.8, -13.2, 0)), False)
sketch2.addGeometry(Part.ArcOfCircle(Part.Circle(V(0, 0, 0), V(0, 0, 1), 45), math.radians(-122.08), math.radians(-109.34)), False)
sketch2.addGeometry(Part.LineSegment(V(-14.9, -42.5, 0), V(-13.3, -37.7, 0)), False)
sketch2.addGeometry(Part.ArcOfCircle(Part.Circle(V(0, 0, 0), V(0, 0, 1), 40), math.radians(-122.08), math.radians(-109.34)), False)
sketch2.addGeometry(Part.LineSegment(V(-21.2, -33.9, 0), V(-23.9, -38.1, 0)), False)
sketch2.addGeometry(Part.ArcOfCircle(Part.Circle(V(0, 0, 0), V(0, 0, 1), 45), math.radians(-70.66), math.radians(-57.92)), False)
sketch2.addGeometry(Part.LineSegment(V(23.9, -38.1, 0), V(21.2, -33.9, 0)), False)
sketch2.addGeometry(Part.ArcOfCircle(Part.Circle(V(0, 0, 0), V(0, 0, 1), 40), math.radians(-70.66), math.radians(-57.92)), False)
sketch2.addGeometry(Part.LineSegment(V(13.3, -37.7, 0), V(14.9, -42.5, 0)), False)
sketch2.addGeometry(Part.ArcOfCircle(Part.Circle(V(0, 0, 0), V(0, 0, 1), 45), math.radians(-19.23), math.radians(-6.49)), False)
sketch2.addGeometry(Part.LineSegment(V(44.7, -5.1, 0), V(39.7, -4.5, 0)), False)
sketch2.addGeometry(Part.ArcOfCircle(Part.Circle(V(0, 0, 0), V(0, 0, 1), 40), math.radians(-19.23), math.radians(-6.49)), False)
sketch2.addGeometry(Part.LineSegment(V(37.8, -13.2, 0), V(42.5, -14.8, 0)), False)
sketch2.addGeometry(Part.LineSegment(V(33.8, 21.3, 0), V(38.1, 24, 0)), False)
sketch2.addGeometry(Part.ArcOfCircle(Part.Circle(V(0, 0, 0), V(0, 0, 1), 45), math.radians(32.2), math.radians(44.94)), False)
sketch2.addGeometry(Part.LineSegment(V(31.9, 31.8, 0), V(28.3, 28.3, 0)), False)
sketch2.addGeometry(Part.ArcOfCircle(Part.Circle(V(0, 0, 0), V(0, 0, 1), 40), math.radians(32.2), math.radians(44.94)), False)
sketch2.addConstraint(Sketcher.Constraint("Coincident", 0, 2, 1, 1))
sketch2.addConstraint(Sketcher.Constraint("Coincident", 1, 2, 2, 1))
sketch2.addConstraint(Sketcher.Constraint("Coincident", 2, 2, 3, 1))
sketch2.addConstraint(Sketcher.Constraint("Coincident", 3, 2, 4, 2))
sketch2.addConstraint(Sketcher.Constraint("Coincident", 4, 1, 0, 1))
sketch2.addConstraint(Sketcher.Constraint("Coincident", 5, 2, 6, 1))
sketch2.addConstraint(Sketcher.Constraint("Coincident", 6, 2, 7, 1))
sketch2.addConstraint(Sketcher.Constraint("Coincident", 7, 2, 8, 2))
sketch2.addConstraint(Sketcher.Constraint("Coincident", 8, 1, 5, 1))
sketch2.addConstraint(Sketcher.Constraint("Coincident", 9, 1, 10, 1))
sketch2.addConstraint(Sketcher.Constraint("Coincident", 10, 2, 11, 1))
sketch2.addConstraint(Sketcher.Constraint("Coincident", 11, 2, 12, 1))
sketch2.addConstraint(Sketcher.Constraint("Coincident", 12, 2, 9, 2))
sketch2.addConstraint(Sketcher.Constraint("Coincident", 13, 2, 14, 1))
sketch2.addConstraint(Sketcher.Constraint("Coincident", 14, 2, 15, 2))
sketch2.addConstraint(Sketcher.Constraint("Coincident", 15, 1, 16, 1))
sketch2.addConstraint(Sketcher.Constraint("Coincident", 16, 2, 13, 1))
sketch2.addConstraint(Sketcher.Constraint("Coincident", 17, 2, 18, 1))
sketch2.addConstraint(Sketcher.Constraint("Coincident", 18, 2, 19, 2))
sketch2.addConstraint(Sketcher.Constraint("Coincident", 19, 1, 20, 1))
sketch2.addConstraint(Sketcher.Constraint("Coincident", 20, 2, 17, 1))
sketch2.addConstraint(Sketcher.Constraint("Coincident", 21, 2, 22, 1))
sketch2.addConstraint(Sketcher.Constraint("Coincident", 22, 2, 23, 2))
sketch2.addConstraint(Sketcher.Constraint("Coincident", 23, 1, 24, 1))
sketch2.addConstraint(Sketcher.Constraint("Coincident", 24, 2, 21, 1))
sketch2.addConstraint(Sketcher.Constraint("Coincident", 25, 2, 26, 1))
sketch2.addConstraint(Sketcher.Constraint("Coincident", 26, 2, 27, 1))
sketch2.addConstraint(Sketcher.Constraint("Coincident", 27, 2, 28, 2))
sketch2.addConstraint(Sketcher.Constraint("Coincident", 28, 1, 25, 1))
sketch2.addConstraint(Sketcher.Constraint("Coincident", 4, 3, -1, 1))
sketch2.addConstraint(Sketcher.Constraint("Coincident", 6, 3, -1, 1))
sketch2.addConstraint(Sketcher.Constraint("Coincident", 8, 3, -1, 1))
sketch2.addConstraint(Sketcher.Constraint("Coincident", 9, 3, -1, 1))
sketch2.addConstraint(Sketcher.Constraint("Coincident", 11, 3, -1, 1))
sketch2.addConstraint(Sketcher.Constraint("Coincident", 13, 3, -1, 1))
sketch2.addConstraint(Sketcher.Constraint("Coincident", 15, 3, -1, 1))
sketch2.addConstraint(Sketcher.Constraint("Coincident", 17, 3, -1, 1))
sketch2.addConstraint(Sketcher.Constraint("Coincident", 19, 3, -1, 1))
sketch2.addConstraint(Sketcher.Constraint("Coincident", 21, 3, -1, 1))
sketch2.addConstraint(Sketcher.Constraint("Coincident", 23, 3, -1, 1))
sketch2.addConstraint(Sketcher.Constraint("Coincident", 26, 3, -1, 1))
sketch2.addConstraint(Sketcher.Constraint("Coincident", 28, 3, -1, 1))
sketch2.addConstraint(Sketcher.Constraint("Equal", 4, 8))
sketch2.addConstraint(Sketcher.Constraint("Equal", 8, 9))
sketch2.addConstraint(Sketcher.Constraint("Equal", 6, 11))
sketch2.addConstraint(Sketcher.Constraint("Equal", 11, 13))
sketch2.addConstraint(Sketcher.Constraint("Equal", 9, 15))
sketch2.addConstraint(Sketcher.Constraint("Equal", 13, 17))
sketch2.addConstraint(Sketcher.Constraint("Equal", 15, 19))
sketch2.addConstraint(Sketcher.Constraint("Equal", 17, 21))
sketch2.addConstraint(Sketcher.Constraint("Equal", 19, 23))
sketch2.addConstraint(Sketcher.Constraint("Equal", 21, 26))
sketch2.addConstraint(Sketcher.Constraint("Equal", 23, 28))
sketch2.addConstraint(Sketcher.Constraint("Symmetric", 0, 2, 2, 2, -2))
sketch2.addConstraint(Sketcher.Constraint("PointOnObject", 1, 2, -2))
sketch2.addConstraint(Sketcher.Constraint("Horizontal", 3, 2, 4, 1))
sketch2.addConstraint(Sketcher.Constraint("Horizontal", 16, 2, 17, 2))
sketch2.addConstraint(Sketcher.Constraint("Horizontal", 15, 1, 18, 2))
sketch2.addConstraint(Sketcher.Constraint("Horizontal", 14, 2, 19, 1))
sketch2.addConstraint(Sketcher.Constraint("Horizontal", 13, 2, 20, 2))
sketch2.addConstraint(Sketcher.Constraint("Horizontal", 10, 2, 21, 2))
sketch2.addConstraint(Sketcher.Constraint("Horizontal", 9, 1, 22, 2))
sketch2.addConstraint(Sketcher.Constraint("Horizontal", 12, 2, 23, 1))
sketch2.addConstraint(Sketcher.Constraint("Horizontal", 11, 2, 24, 2))
sketch2.addConstraint(Sketcher.Constraint("Horizontal", 6, 2, 25, 2))
sketch2.addConstraint(Sketcher.Constraint("Horizontal", 5, 2, 26, 2))
sketch2.addConstraint(Sketcher.Constraint("Horizontal", 8, 1, 27, 2))
sketch2.addConstraint(Sketcher.Constraint("Horizontal", 7, 2, 28, 1))
sketch2.addConstraint(Sketcher.Constraint("Equal", 0, 1))
sketch2.addConstraint(Sketcher.Constraint("Equal", 3, 5))
sketch2.addConstraint(Sketcher.Constraint("Radius", 4, 40.0))
sketch2.addConstraint(Sketcher.Constraint("Radius", 6, 45.0))
sketch2.addConstraint(Sketcher.Constraint("DistanceY", -1, 1, 1, 2, 45.0))
sketch2.addConstraint(Sketcher.Constraint("DistanceX", 7, 2, -1, 1, 33.847001))
sketch2.addConstraint(Sketcher.Constraint("DistanceY", 13, 2, -1, 1, 42.459398))
sketch2.addConstraint(Sketcher.Constraint("DistanceY", 15, 1, -1, 1, 33.890899))
sketch2.addConstraint(Sketcher.Constraint("DistanceX", 10, 2, 8, 1, 16.398401))
sketch2.addConstraint(Sketcher.Constraint("DistanceX", 11, 2, 13, 2, 27.583698))
sketch2.addConstraint(Sketcher.Constraint("DistanceX", 12, 2, 15, 1, 16.522599))
sketch2.addConstraint(Sketcher.Constraint("DistanceX", 3, 2, -1, 1, 4.43758))
sketch2.addConstraint(Sketcher.Constraint("DistanceY", -1, 1, 5, 2, 31.78697))
sketch2.addConstraint(Sketcher.Constraint("DistanceY", -1, 1, 6, 2, 23.980729))
sketch2.addConstraint(Sketcher.Constraint("DistanceX", 8, 1, -1, 1, 28.313428))
sketch2.addConstraint(Sketcher.Constraint("DistanceX", 9, 1, -1, 1, 39.743848))
sketch2.addConstraint(Sketcher.Constraint("DistanceY", 16, 2, -1, 1, 38.127262))
sketch2.addConstraint(Sketcher.Constraint("DistanceX", 13, 2, 14, 2, 1.656262))
pad2 = body.newObject("PartDesign::Pad", "Pad001")
pad2.Profile = sketch2
pad2.Length = 8

doc.recompute()
